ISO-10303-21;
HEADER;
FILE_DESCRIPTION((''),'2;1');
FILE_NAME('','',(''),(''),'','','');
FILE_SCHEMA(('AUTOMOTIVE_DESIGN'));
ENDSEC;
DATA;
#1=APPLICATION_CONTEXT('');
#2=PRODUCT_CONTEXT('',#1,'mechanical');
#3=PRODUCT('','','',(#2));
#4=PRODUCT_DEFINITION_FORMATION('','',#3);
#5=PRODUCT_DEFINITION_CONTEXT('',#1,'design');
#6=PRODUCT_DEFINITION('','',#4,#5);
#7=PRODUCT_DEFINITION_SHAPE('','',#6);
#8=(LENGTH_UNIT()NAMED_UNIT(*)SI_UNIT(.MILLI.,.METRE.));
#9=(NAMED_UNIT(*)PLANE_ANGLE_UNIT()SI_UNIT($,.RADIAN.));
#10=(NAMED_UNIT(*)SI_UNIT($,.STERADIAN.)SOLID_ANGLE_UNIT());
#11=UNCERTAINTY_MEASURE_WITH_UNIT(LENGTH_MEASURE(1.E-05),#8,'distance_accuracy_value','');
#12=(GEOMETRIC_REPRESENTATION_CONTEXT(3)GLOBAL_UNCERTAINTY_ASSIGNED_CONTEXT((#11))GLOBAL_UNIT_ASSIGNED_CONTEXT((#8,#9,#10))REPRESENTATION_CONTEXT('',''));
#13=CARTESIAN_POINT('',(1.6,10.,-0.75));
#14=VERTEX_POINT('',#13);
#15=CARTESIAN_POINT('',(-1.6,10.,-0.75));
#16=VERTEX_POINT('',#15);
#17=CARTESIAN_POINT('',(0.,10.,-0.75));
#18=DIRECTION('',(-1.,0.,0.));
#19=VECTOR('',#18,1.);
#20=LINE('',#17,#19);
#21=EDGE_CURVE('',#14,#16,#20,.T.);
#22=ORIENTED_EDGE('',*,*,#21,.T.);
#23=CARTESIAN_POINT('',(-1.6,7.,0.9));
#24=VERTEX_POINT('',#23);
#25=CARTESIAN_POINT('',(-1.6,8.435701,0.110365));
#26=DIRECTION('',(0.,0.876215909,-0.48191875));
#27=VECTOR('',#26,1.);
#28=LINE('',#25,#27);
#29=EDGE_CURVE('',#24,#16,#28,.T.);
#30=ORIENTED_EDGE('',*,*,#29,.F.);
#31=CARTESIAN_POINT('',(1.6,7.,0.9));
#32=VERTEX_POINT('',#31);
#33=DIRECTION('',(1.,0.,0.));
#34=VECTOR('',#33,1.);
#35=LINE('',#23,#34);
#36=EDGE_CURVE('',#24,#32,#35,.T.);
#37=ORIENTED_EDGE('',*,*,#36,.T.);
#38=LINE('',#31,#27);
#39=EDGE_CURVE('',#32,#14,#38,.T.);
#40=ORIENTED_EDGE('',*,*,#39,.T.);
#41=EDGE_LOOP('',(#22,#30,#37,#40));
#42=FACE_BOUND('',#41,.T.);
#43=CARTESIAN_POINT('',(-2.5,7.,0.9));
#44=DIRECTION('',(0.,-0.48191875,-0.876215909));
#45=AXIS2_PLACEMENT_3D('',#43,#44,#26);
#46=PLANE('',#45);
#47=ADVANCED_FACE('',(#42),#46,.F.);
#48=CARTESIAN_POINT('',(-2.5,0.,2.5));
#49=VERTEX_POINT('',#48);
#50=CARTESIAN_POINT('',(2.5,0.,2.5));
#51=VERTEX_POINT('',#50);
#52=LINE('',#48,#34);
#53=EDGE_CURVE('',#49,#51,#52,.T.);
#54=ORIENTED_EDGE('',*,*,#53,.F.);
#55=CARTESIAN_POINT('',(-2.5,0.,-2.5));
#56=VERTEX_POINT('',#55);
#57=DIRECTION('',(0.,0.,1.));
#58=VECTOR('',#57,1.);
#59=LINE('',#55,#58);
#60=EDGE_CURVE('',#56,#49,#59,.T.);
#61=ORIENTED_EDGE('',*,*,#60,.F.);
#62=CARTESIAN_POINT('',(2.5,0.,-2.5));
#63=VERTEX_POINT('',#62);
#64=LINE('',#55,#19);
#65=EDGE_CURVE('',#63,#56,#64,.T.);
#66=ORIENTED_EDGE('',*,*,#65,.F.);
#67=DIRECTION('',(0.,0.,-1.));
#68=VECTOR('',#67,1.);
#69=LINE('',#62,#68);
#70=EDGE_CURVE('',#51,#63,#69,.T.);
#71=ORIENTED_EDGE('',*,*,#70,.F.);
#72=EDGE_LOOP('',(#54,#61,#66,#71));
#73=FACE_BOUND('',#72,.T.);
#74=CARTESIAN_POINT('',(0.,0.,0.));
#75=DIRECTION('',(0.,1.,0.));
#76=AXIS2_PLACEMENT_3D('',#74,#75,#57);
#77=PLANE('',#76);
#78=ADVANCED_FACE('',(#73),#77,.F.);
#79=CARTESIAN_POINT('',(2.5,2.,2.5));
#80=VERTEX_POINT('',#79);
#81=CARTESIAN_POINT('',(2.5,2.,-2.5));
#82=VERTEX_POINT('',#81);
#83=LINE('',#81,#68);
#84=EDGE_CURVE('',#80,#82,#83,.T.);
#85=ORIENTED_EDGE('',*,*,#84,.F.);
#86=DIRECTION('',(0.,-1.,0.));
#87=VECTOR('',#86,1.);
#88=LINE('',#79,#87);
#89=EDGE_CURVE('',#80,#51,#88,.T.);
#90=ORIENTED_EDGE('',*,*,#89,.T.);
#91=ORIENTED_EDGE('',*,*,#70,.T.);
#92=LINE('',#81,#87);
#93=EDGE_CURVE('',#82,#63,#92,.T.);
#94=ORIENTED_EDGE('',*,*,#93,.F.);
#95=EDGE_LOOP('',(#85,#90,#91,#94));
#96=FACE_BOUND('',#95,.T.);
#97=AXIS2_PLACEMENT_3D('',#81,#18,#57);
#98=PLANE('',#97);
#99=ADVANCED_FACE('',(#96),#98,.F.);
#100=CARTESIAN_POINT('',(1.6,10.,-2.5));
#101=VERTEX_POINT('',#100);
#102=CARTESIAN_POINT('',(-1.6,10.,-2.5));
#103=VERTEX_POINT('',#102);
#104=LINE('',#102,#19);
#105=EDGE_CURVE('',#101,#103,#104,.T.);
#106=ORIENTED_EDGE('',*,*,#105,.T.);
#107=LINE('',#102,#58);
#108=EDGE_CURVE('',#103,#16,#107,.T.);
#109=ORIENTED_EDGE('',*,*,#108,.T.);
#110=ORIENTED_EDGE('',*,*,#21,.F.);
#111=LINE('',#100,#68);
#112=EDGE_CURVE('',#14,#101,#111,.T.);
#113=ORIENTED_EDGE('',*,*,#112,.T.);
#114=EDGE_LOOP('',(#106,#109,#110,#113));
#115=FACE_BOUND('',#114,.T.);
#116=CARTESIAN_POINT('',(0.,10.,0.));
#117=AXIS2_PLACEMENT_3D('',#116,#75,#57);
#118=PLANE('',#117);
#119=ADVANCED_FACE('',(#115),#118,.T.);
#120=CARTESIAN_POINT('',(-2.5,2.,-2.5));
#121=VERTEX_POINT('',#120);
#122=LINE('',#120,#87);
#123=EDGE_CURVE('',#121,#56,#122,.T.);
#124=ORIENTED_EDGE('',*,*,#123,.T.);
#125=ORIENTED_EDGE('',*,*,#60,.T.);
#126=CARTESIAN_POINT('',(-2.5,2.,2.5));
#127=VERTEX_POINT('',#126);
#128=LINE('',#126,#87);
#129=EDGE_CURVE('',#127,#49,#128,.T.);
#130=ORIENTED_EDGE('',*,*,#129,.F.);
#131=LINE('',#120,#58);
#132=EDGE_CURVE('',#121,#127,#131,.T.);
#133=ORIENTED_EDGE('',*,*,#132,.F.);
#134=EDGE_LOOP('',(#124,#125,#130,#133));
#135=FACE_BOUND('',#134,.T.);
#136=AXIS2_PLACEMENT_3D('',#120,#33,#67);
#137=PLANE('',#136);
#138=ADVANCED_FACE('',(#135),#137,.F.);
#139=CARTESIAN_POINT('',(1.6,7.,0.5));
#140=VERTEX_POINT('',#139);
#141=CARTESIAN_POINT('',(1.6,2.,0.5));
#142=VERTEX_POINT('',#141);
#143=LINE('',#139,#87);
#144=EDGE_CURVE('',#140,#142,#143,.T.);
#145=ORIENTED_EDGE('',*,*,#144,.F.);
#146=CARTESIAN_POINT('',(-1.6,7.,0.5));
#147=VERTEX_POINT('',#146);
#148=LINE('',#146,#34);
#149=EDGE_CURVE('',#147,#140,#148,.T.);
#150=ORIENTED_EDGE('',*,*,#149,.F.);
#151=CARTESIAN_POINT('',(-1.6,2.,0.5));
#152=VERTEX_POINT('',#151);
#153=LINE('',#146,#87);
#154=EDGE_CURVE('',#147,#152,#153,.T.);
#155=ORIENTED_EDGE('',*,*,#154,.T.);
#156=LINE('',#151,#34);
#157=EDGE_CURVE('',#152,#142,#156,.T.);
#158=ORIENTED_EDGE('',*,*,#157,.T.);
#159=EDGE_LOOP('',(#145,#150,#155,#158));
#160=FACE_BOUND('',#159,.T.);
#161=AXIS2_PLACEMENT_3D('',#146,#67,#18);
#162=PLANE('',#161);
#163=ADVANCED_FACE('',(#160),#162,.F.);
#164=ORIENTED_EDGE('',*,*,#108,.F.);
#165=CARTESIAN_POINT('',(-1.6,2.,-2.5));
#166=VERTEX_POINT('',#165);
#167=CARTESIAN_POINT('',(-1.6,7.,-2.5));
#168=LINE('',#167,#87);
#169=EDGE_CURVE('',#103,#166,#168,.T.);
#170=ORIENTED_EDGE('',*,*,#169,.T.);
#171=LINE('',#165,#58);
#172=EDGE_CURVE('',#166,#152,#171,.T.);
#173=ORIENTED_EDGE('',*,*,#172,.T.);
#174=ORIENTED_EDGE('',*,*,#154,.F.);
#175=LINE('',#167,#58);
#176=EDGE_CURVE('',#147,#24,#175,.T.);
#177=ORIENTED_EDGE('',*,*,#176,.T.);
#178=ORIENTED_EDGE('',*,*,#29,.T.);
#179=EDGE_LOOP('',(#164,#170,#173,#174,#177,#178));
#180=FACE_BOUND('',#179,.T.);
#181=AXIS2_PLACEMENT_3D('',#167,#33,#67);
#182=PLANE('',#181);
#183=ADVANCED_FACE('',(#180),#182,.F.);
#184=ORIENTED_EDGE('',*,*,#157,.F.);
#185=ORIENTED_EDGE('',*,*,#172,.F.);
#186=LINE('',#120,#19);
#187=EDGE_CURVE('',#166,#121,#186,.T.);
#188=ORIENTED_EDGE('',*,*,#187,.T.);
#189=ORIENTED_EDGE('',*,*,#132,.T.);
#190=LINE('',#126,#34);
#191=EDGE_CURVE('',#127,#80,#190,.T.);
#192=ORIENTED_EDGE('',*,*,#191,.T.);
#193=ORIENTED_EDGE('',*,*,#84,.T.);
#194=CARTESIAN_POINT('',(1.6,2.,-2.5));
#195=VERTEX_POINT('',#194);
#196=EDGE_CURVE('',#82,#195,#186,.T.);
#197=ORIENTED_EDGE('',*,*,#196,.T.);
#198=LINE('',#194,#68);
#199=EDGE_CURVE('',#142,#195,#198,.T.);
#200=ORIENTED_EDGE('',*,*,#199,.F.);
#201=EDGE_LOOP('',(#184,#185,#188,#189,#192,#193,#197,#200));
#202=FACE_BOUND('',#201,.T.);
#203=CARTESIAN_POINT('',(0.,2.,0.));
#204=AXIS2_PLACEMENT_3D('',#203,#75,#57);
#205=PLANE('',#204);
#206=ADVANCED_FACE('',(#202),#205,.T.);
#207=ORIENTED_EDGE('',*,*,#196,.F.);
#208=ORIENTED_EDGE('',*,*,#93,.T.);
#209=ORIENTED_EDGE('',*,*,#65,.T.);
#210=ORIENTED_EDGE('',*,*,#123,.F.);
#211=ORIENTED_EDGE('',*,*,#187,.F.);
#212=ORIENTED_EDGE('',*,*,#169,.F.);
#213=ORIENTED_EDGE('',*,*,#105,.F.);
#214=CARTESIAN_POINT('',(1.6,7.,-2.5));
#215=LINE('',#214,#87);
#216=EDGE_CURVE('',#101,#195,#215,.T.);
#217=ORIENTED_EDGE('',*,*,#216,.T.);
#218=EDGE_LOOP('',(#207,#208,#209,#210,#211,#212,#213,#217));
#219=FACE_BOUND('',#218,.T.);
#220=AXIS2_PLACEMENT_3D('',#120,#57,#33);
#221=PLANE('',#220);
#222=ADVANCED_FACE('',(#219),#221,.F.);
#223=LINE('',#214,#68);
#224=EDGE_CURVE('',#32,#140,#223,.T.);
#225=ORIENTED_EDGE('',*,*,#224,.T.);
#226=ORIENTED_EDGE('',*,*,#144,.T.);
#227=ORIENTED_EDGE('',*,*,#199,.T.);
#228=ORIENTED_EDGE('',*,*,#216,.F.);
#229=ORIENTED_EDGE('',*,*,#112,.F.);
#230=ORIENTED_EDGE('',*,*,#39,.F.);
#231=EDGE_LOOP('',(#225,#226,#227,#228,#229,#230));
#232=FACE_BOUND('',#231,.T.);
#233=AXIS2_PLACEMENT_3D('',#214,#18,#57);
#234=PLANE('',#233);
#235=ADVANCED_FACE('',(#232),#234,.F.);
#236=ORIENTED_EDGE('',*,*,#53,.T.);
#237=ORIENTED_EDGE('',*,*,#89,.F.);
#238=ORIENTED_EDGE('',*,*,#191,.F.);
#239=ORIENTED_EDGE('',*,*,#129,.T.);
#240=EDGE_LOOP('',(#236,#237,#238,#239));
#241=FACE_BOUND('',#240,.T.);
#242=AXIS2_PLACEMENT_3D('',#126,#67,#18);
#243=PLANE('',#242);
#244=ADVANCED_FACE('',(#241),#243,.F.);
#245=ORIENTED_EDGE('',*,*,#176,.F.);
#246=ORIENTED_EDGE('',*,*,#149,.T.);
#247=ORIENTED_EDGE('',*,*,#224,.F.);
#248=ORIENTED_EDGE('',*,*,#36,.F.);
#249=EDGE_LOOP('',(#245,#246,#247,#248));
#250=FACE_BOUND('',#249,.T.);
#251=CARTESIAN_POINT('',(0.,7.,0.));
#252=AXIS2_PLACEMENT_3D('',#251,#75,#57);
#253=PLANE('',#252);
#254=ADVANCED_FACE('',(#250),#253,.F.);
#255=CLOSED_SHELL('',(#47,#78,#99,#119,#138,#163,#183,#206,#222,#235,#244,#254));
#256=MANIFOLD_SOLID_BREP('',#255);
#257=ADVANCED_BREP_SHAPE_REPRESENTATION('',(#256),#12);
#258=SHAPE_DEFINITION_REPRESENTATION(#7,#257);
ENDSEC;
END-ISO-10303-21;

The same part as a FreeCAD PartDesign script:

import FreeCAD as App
import Part
import Sketcher
Q = App.Units.Quantity


def add_polygon(sketch, points):
    """Adds a closed chain of lines whose ends are joined by coincident constraints."""
    first, n = sketch.GeometryCount, len(points)
    for a, b in zip(points, points[1:] + points[:1]):
        sketch.addGeometry(Part.LineSegment(App.Vector(*a, 0), App.Vector(*b, 0)), False)
    for i in range(n):
        sketch.addConstraint(Sketcher.Constraint("Coincident", first + i, 2, first + (i + 1) % n, 1))

doc = App.newDocument("Part")
params = doc.addObject("Spreadsheet::Sheet", "Params")
for row, (alias, value) in enumerate([
    ("sketch1_width", "5 mm"),
    ("pad1_length", "2 mm"),
    ("sketch2_height", "3 mm"),
    ("sketch2_width", "3.2 mm"),
    ("pad2_length", "5 mm"),
    ("sketch3_width", "3.2 mm"),
    ("sketch3_height", "3.4 mm"),
    ("pad3_length", "3 mm"),
    ("sketch4_width", "3 mm"),
    ("sketch4_height", "1.65 mm"),
], start=1):
    params.set(f"A{row}", alias)
    params.set(f"B{row}", "=" + value)
    params.setAlias(f"B{row}", alias)

body = doc.addObject("PartDesign::Body", "Body")

# Sketch on XZ plane
sketch1 = body.newObject("Sketcher::SketchObject", "Sketch")
sketch1.AttachmentSupport = (doc.getObject("XZ_Plane"), [""])
sketch1.MapMode = "FlatFace"
add_polygon(sketch1, [(-2, -2), (-2, 2), (2, 2), (2, -2)])  # lines 0-3
sketch1.addConstraint([
    Sketcher.Constraint("Vertical", 0),
    Sketcher.Constraint("Horizontal", 1),
    Sketcher.Constraint("Vertical", 2),
    Sketcher.Constraint("Horizontal", 3),
    Sketcher.Constraint("Symmetric", 0, 2, 2, 2, -1, 1),
    Sketcher.Constraint("Equal", 3, 0),
    Sketcher.Constraint("DistanceX", 1, 1, 1, 2, Q("5 mm")),
])
sketch1.setExpression("Constraints[10]", "Params.sketch1_width")
pad1 = body.newObject("PartDesign::Pad", "Pad")
pad1.Profile = sketch1
pad1.setExpression("Length", "Params.pad1_length")
pad1.Reversed = True

# Sketch on XZ plane
sketch2 = body.newObject("Sketcher::SketchObject", "Sketch001")
sketch2.AttachmentSupport = (doc.getObject("XZ_Plane"), [""])
sketch2.MapMode = "FlatFace"
sketch2.AttachmentOffset = App.Placement(App.Vector(0, 0, -2), App.Rotation())
add_polygon(sketch2, [(-1.6, -2.5), (-1.6, 0.5), (1.6, 0.5), (1.6, -2.5)])  # lines 0-3
sketch2.addConstraint([
    Sketcher.Constraint("Vertical", 0),
    Sketcher.Constraint("Horizontal", 1),
    Sketcher.Constraint("Vertical", 2),
    Sketcher.Constraint("Horizontal", 3),
    Sketcher.Constraint("DistanceY", 0, 1, 0, 2, Q("3 mm")),
    Sketcher.Constraint("DistanceX", 1, 1, 1, 2, Q("3.2 mm")),
    Sketcher.Constraint("DistanceX", 0, 2, -1, 1, Q("1.6 mm")),
    Sketcher.Constraint("DistanceY", -1, 1, 0, 2, Q("0.5 mm")),
])
sketch2.setExpression("Constraints[8]", "Params.sketch2_height")
sketch2.setExpression("Constraints[9]", "Params.sketch2_width")
pad2 = body.newObject("PartDesign::Pad", "Pad001")
pad2.Profile = sketch2
pad2.setExpression("Length", "Params.pad2_length")
pad2.Reversed = True

# Sketch on XZ plane
sketch3 = body.newObject("Sketcher::SketchObject", "Sketch002")
sketch3.AttachmentSupport = (doc.getObject("XZ_Plane"), [""])
sketch3.MapMode = "FlatFace"
sketch3.AttachmentOffset = App.Placement(App.Vector(0, 0, -7), App.Rotation())
add_polygon(sketch3, [(-1.6, -2.5), (-1.6, 0.9), (1.6, 0.9), (1.6, -2.5)])  # lines 0-3
sketch3.addConstraint([
    Sketcher.Constraint("Vertical", 0),
    Sketcher.Constraint("Horizontal", 1),
    Sketcher.Constraint("Vertical", 2),
    Sketcher.Constraint("Horizontal", 3),
    Sketcher.Constraint("DistanceX", 1, 1, 1, 2, Q("3.2 mm")),
    Sketcher.Constraint("DistanceY", 0, 1, 0, 2, Q("3.4 mm")),
    Sketcher.Constraint("DistanceX", 0, 2, -1, 1, Q("1.6 mm")),
    Sketcher.Constraint("DistanceY", -1, 1, 0, 2, Q("0.9 mm")),
])
sketch3.setExpression("Constraints[8]", "Params.sketch3_width")
sketch3.setExpression("Constraints[9]", "Params.sketch3_height")
pad3 = body.newObject("PartDesign::Pad", "Pad002")
pad3.Profile = sketch3
pad3.setExpression("Length", "Params.pad3_length")
pad3.Reversed = True

# Sketch on YZ plane
sketch4 = body.newObject("Sketcher::SketchObject", "Sketch003")
sketch4.AttachmentSupport = (doc.getObject("YZ_Plane"), [""])
sketch4.MapMode = "FlatFace"
sketch4.AttachmentOffset = App.Placement(App.Vector(0, 0, 1.6), App.Rotation())
add_polygon(sketch4, [(7, 0.9), (10, -0.8), (10, 0.9)])  # lines 0-2
sketch4.addConstraint([
    Sketcher.Constraint("Vertical", 1),
    Sketcher.Constraint("Horizontal", 2),
    Sketcher.Constraint("DistanceX", 2, 2, 2, 1, Q("3 mm")),
    Sketcher.Constraint("DistanceX", -1, 1, 0, 2, Q("10 mm")),
    Sketcher.Constraint("DistanceY", 1, 1, 1, 2, Q("1.65 mm")),
    Sketcher.Constraint("DistanceY", -1, 1, 1, 2, Q("0.9 mm")),
])
sketch4.setExpression("Constraints[5]", "Params.sketch4_width")
sketch4.setExpression("Constraints[7]", "Params.sketch4_height")
pocket1 = body.newObject("PartDesign::Pocket", "Pocket")
pocket1.Profile = sketch4
pocket1.Type = "ThroughAll"

doc.recompute()
